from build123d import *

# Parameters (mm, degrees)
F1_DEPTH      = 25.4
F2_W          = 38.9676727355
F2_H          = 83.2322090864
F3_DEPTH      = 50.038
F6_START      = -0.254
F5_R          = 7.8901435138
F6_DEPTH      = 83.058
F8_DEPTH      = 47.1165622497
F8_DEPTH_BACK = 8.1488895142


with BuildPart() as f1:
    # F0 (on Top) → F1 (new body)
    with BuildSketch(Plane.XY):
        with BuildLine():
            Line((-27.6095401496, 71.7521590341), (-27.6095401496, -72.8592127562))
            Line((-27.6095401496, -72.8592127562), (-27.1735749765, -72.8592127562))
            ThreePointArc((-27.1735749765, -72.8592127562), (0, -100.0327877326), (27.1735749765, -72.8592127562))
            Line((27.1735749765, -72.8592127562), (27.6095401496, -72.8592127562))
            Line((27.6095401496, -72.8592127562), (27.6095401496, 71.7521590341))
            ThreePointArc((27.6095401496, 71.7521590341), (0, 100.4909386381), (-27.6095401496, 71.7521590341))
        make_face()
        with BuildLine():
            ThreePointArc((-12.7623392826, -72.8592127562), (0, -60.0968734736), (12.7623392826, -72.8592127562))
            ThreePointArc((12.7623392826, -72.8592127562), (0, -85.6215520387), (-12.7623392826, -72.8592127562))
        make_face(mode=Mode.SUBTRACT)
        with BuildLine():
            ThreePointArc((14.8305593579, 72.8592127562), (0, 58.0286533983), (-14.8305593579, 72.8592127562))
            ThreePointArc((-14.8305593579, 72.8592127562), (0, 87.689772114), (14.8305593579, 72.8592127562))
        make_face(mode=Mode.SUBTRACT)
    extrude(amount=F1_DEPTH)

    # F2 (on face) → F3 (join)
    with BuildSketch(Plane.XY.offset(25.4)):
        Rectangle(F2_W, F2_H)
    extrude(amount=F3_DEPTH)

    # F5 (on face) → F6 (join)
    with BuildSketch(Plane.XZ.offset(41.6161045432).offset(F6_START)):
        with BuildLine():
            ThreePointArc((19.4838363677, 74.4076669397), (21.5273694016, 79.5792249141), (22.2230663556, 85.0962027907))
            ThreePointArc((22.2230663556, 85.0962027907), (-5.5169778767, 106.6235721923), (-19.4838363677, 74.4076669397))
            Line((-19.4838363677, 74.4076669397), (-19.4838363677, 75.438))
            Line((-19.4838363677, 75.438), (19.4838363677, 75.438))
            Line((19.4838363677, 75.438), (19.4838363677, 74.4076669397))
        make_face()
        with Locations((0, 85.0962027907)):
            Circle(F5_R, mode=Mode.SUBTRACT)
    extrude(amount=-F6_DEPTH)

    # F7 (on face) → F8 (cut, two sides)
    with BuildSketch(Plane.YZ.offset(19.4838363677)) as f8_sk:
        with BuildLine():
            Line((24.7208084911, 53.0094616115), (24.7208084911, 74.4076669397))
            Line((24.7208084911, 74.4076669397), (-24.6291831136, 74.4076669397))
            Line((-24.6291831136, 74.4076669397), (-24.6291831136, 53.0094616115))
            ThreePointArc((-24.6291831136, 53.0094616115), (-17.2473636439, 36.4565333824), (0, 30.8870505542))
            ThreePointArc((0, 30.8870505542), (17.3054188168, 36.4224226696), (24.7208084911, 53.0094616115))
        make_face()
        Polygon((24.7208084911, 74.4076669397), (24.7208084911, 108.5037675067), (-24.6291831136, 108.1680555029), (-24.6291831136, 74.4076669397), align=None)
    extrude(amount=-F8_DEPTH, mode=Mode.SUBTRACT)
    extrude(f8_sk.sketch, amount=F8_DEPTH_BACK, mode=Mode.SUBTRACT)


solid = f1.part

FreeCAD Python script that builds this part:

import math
import FreeCAD as App
import Part
import Sketcher

V = App.Vector
Q = App.Units.Quantity

doc = App.newDocument("Part")
body = doc.addObject("PartDesign::Body", "Body")

# Sketch on XY plane
sketch1 = body.newObject("Sketcher::SketchObject", "Sketch")
sketch1.AttachmentSupport = (doc.getObject("XY_Plane"), [""])
sketch1.MapMode = "FlatFace"
sketch1.addGeometry([
    Part.LineSegment(V(-27.61, 71.75, 0), V(-27.61, -72.86, 0)),  # 0
    Part.LineSegment(V(-27.61, -72.86, 0), V(-27.17, -72.86, 0)),  # 1
    Part.ArcOfCircle(Part.Circle(V(0, -72.86, 0), V(0, 0, 1), 27.17), math.radians(180), math.radians(360)),  # 2
    Part.LineSegment(V(27.17, -72.86, 0), V(27.61, -72.86, 0)),  # 3
    Part.LineSegment(V(27.61, -72.86, 0), V(27.61, 71.75, 0)),  # 4
    Part.ArcOfCircle(Part.Circle(V(0, 72.86, 0), V(0, 0, 1), 27.63), math.radians(-2), math.radians(182)),  # 5
    Part.ArcOfCircle(Part.Circle(V(0, -72.86, 0), V(0, 0, 1), 12.76), math.radians(180), math.radians(360)),  # 6
    Part.ArcOfCircle(Part.Circle(V(0, -72.86, 0), V(0, 0, 1), 12.76), math.radians(0), math.radians(180)),  # 7
    Part.ArcOfCircle(Part.Circle(V(0, 72.86, 0), V(0, 0, 1), 14.83), math.radians(0), math.radians(180)),  # 8
    Part.ArcOfCircle(Part.Circle(V(0, 72.86, 0), V(0, 0, 1), 14.83), math.radians(180), math.radians(360)),  # 9
], False)
sketch1.addConstraint([
    Sketcher.Constraint("Coincident", 0, 2, 1, 1),
    Sketcher.Constraint("Coincident", 1, 2, 2, 1),
    Sketcher.Constraint("Coincident", 2, 2, 3, 1),
    Sketcher.Constraint("Coincident", 3, 2, 4, 1),
    Sketcher.Constraint("Coincident", 4, 2, 5, 1),
    Sketcher.Constraint("Coincident", 5, 2, 0, 1),
    Sketcher.Constraint("Tangent", 6, 1, 7, 2),
    Sketcher.Constraint("Coincident", 7, 1, 6, 2),
    Sketcher.Constraint("Tangent", 8, 1, 9, 2),
    Sketcher.Constraint("Coincident", 9, 1, 8, 2),
    Sketcher.Constraint("Vertical", 0),
    Sketcher.Constraint("Horizontal", 1),
    Sketcher.Constraint("Horizontal", 3),
    Sketcher.Constraint("Vertical", 4),
    Sketcher.Constraint("Coincident", 6, 3, 2, 3),
    Sketcher.Constraint("Coincident", 8, 3, 5, 3),
    Sketcher.Constraint("Symmetric", 2, 3, 5, 3, -1, 1),
    Sketcher.Constraint("Symmetric", 1, 2, 2, 2, -2),
    Sketcher.Constraint("Horizontal", 7, 3, 0, 2),
    Sketcher.Constraint("Horizontal", 4, 2, 5, 2),
    Sketcher.Constraint("Horizontal", 3, 2, 6, 1),
    Sketcher.Constraint("Horizontal", 6, 1, 7, 1),
    Sketcher.Constraint("Horizontal", 9, 3, 8, 1),
    Sketcher.Constraint("Horizontal", 8, 1, 9, 1),
    Sketcher.Constraint("Radius", 6, Q("12.762339 mm")),
    Sketcher.Constraint("Radius", 8, Q("14.830559 mm")),
    Sketcher.Constraint("Radius", 2, Q("27.173575 mm")),
    Sketcher.Constraint("Radius", 5, Q("27.631726 mm")),
    Sketcher.Constraint("DistanceY", 0, 2, 0, 1, Q("144.611372 mm")),
    Sketcher.Constraint("DistanceX", 0, 2, 6, 1, Q("14.847201 mm")),
])
pad1 = body.newObject("PartDesign::Pad", "Pad")
pad1.Profile = sketch1
pad1.Length = Q("1 in")

# Sketch on XY plane
sketch2 = body.newObject("Sketcher::SketchObject", "Sketch001")
sketch2.AttachmentSupport = (doc.getObject("XY_Plane"), [""])
sketch2.MapMode = "FlatFace"
sketch2.AttachmentOffset = App.Placement(V(0, 0, 1 * 25.4), App.Rotation())
sketch2.addGeometry([
    Part.LineSegment(V(-19, 42, 0), V(-19, -42, 0)),
    Part.LineSegment(V(-19, -42, 0), V(19, -42, 0)),
    Part.LineSegment(V(19, -42, 0), V(19, 42, 0)),
    Part.LineSegment(V(19, 42, 0), V(-19, 42, 0)),
], False)
sketch2.addConstraint([
    Sketcher.Constraint("Coincident", 0, 2, 1, 1),
    Sketcher.Constraint("Coincident", 1, 2, 2, 1),
    Sketcher.Constraint("Coincident", 2, 2, 3, 1),
    Sketcher.Constraint("Coincident", 3, 2, 0, 1),
    Sketcher.Constraint("Vertical", 0),
    Sketcher.Constraint("Horizontal", 1),
    Sketcher.Constraint("Vertical", 2),
    Sketcher.Constraint("Horizontal", 3),
    Sketcher.Constraint("Symmetric", 0, 2, 2, 2, -1, 1),
    Sketcher.Constraint("DistanceY", 0, 2, 0, 1, Q("83.232209 mm")),
    Sketcher.Constraint("DistanceX", 1, 1, 1, 2, Q("38.967673 mm")),
])
pad2 = body.newObject("PartDesign::Pad", "Pad001")
pad2.Profile = sketch2
pad2.Length = Q("1.97 in")

# Sketch on XZ plane
sketch3 = body.newObject("Sketcher::SketchObject", "Sketch002")
sketch3.AttachmentSupport = (doc.getObject("XZ_Plane"), [""])
sketch3.MapMode = "FlatFace"
sketch3.AttachmentOffset = App.Placement(V(0, 0, 41.362105), App.Rotation())
sketch3.addGeometry([
    Part.ArcOfCircle(Part.Circle(V(0, 85.1, 0), V(0, 0, 1), 22.2), math.radians(-29), math.radians(0)),  # 0
    Part.ArcOfCircle(Part.Circle(V(0, 85.1, 0), V(0, 0, 1), 22.2), math.radians(0), math.radians(209)),  # 1
    Part.LineSegment(V(-19.5, 74.4, 0), V(-19.5, 75.4, 0)),  # 2
    Part.LineSegment(V(-19.5, 75.4, 0), V(19.5, 75.4, 0)),  # 3
    Part.LineSegment(V(19.5, 75.4, 0), V(19.5, 74.4, 0)),  # 4
    Part.Circle(V(0, 85.1, 0), V(0, 0, 1), 7.9),  # 5
], False)
sketch3.addConstraint([
    Sketcher.Constraint("Tangent", 0, 2, 1, 1),
    Sketcher.Constraint("Coincident", 1, 2, 2, 1),
    Sketcher.Constraint("Coincident", 2, 2, 3, 1),
    Sketcher.Constraint("Coincident", 3, 2, 4, 1),
    Sketcher.Constraint("Coincident", 4, 2, 0, 1),
    Sketcher.Constraint("Vertical", 2),
    Sketcher.Constraint("Horizontal", 3),
    Sketcher.Constraint("Vertical", 4),
    Sketcher.Constraint("Coincident", 5, 3, 0, 3),
    Sketcher.Constraint("Equal", 0, 1),
    Sketcher.Constraint("Symmetric", 1, 2, 4, 2, -2),
    Sketcher.Constraint("Horizontal", 5, 3, 0, 2),
    Sketcher.Constraint("DistanceY", -1, 1, 2, 2, Q("2.97 in")),
    Sketcher.Constraint("Diameter", 5, Q("15.780287 mm")),
    Sketcher.Constraint("Radius", 0, Q("22.223066 mm")),
    Sketcher.Constraint("DistanceX", 3, 1, 3, 2, Q("38.967673 mm")),
    Sketcher.Constraint("DistanceY", 2, 1, 2, 2, Q("1.030333 mm")),
])
pad3 = body.newObject("PartDesign::Pad", "Pad002")
pad3.Profile = sketch3
pad3.Length = Q("3.27 in")
pad3.Reversed = True

# Sketch on YZ plane
sketch4 = body.newObject("Sketcher::SketchObject", "Sketch003")
sketch4.AttachmentSupport = (doc.getObject("YZ_Plane"), [""])
sketch4.MapMode = "FlatFace"
sketch4.AttachmentOffset = App.Placement(V(0, 0, 19.483836), App.Rotation())
sketch4.addGeometry([
    Part.LineSegment(V(25, 53, 0), V(25, 109, 0)),  # 0
    Part.LineSegment(V(25, 109, 0), V(-25, 108, 0)),  # 1
    Part.LineSegment(V(-25, 108, 0), V(-25, 53, 0)),  # 2
    Part.ArcOfCircle(Part.Circle(V(-2, 53, 0), V(0, 0, 1), 22), math.radians(180), math.radians(276)),  # 3
    Part.ArcOfCircle(Part.Circle(V(2, 53, 0), V(0, 0, 1), 22), math.radians(-96), math.radians(0)),  # 4
], False)
sketch4.addConstraint([
    Sketcher.Constraint("Coincident", 0, 2, 1, 1),
    Sketcher.Constraint("Coincident", 1, 2, 2, 1),
    Sketcher.Constraint("Tangent", 2, 2, 3, 1),
    Sketcher.Constraint("Coincident", 3, 2, 4, 1),
    Sketcher.Constraint("Tangent", 4, 2, 0, 1),
    Sketcher.Constraint("Vertical", 0),
    Sketcher.Constraint("Vertical", 2),
    Sketcher.Constraint("PointOnObject", 3, 2, -2),
    Sketcher.Constraint("Horizontal", 3, 3, 4, 3),
    Sketcher.Constraint("Radius", 3, Q("22.249981 mm")),
    Sketcher.Constraint("Radius", 4, Q("22.258969 mm")),
    Sketcher.Constraint("DistanceX", 3, 3, -1, 1, Q("2.379202 mm")),
    Sketcher.Constraint("DistanceY", 0, 1, 0, 2, Q("55.494306 mm")),
    Sketcher.Constraint("DistanceY", 2, 2, 2, 1, Q("55.158594 mm")),
    Sketcher.Constraint("DistanceY", -1, 1, 3, 3, Q("53.009462 mm")),
])
pocket1 = body.newObject("PartDesign::Pocket", "Pocket")
pocket1.Profile = sketch4
pocket1.Type = "ThroughAll"
pocket1.Midplane = True

doc.recompute()
